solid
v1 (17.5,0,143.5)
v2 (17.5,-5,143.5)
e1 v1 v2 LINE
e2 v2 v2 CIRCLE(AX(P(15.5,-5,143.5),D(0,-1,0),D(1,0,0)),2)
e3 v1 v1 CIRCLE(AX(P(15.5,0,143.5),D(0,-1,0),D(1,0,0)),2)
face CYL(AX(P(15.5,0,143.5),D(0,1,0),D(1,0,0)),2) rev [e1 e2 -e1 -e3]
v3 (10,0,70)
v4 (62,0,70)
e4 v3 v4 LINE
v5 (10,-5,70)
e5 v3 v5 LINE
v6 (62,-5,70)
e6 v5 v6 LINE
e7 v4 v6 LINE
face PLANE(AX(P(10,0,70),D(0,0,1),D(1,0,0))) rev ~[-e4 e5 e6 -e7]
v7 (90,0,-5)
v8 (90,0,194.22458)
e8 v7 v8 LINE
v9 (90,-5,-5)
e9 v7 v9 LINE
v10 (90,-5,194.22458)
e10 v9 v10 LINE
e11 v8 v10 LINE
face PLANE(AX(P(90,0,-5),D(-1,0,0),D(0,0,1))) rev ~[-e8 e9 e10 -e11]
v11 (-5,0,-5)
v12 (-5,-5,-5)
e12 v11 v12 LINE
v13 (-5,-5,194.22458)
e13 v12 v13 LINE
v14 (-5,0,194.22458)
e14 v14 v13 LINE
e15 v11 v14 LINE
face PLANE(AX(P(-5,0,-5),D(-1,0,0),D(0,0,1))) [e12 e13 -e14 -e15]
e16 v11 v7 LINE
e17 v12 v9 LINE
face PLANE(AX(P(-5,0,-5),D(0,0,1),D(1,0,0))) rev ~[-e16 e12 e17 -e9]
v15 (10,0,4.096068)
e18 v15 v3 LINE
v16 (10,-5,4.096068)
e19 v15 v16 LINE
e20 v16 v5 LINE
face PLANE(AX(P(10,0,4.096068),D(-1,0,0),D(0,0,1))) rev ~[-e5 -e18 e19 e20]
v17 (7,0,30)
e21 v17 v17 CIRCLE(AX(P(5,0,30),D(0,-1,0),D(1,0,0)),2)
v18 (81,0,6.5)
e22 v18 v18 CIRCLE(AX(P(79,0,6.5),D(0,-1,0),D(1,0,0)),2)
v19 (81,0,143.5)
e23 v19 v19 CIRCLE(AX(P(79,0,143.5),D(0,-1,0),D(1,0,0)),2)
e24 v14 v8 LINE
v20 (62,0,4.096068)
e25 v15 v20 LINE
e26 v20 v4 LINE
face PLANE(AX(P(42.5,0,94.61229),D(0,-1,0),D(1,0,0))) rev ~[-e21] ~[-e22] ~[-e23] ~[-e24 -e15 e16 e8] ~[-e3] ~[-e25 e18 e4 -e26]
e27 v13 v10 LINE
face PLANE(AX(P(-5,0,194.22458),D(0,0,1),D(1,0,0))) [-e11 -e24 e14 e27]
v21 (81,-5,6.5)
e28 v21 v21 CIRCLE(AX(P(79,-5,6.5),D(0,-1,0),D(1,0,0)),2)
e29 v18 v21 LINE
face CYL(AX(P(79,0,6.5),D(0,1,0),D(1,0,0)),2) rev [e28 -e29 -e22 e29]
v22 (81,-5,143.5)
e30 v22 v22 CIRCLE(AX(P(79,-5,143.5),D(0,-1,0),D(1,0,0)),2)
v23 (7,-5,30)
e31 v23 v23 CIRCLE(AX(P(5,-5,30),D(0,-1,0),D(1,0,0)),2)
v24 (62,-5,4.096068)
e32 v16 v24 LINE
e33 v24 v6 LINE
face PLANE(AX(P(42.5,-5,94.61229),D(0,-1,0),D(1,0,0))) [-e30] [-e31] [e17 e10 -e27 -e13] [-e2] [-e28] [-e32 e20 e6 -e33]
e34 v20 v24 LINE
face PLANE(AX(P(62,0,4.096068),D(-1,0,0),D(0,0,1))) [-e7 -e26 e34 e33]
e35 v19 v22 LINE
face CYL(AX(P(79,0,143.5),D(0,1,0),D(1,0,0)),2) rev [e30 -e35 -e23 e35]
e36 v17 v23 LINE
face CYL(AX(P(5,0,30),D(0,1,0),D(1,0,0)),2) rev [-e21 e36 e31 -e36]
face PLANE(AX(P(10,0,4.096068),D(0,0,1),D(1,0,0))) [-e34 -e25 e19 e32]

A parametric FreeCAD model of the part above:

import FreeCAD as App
import Part
import Sketcher

V = App.Vector

doc = App.newDocument("Part")
body = doc.addObject("PartDesign::Body", "Body")

# Sketch on XZ plane
sketch1 = doc.addObject("Sketcher::SketchObject", "Sketch")
body.addObject(sketch1)
sketch1.AttachmentSupport = (doc.XZ_Plane, [""])
sketch1.MapMode = "FlatFace"
sketch1.addGeometry(Part.LineSegment(V(-5, 194.2, 0), V(-5, -5, 0)), False)
sketch1.addGeometry(Part.LineSegment(V(-5, -5, 0), V(90, -5, 0)), False)
sketch1.addGeometry(Part.LineSegment(V(90, -5, 0), V(90, 194.2, 0)), False)
sketch1.addGeometry(Part.LineSegment(V(90, 194.2, 0), V(-5, 194.2, 0)), False)
sketch1.addGeometry(Part.Circle(V(5, 30, 0), V(0, 0, 1), 2), False)
sketch1.addGeometry(Part.LineSegment(V(62, 4.1, 0), V(10, 4.1, 0)), False)
sketch1.addGeometry(Part.LineSegment(V(10, 4.1, 0), V(10, 70, 0)), False)
sketch1.addGeometry(Part.LineSegment(V(10, 70, 0), V(62, 70, 0)), False)
sketch1.addGeometry(Part.LineSegment(V(62, 70, 0), V(62, 4.1, 0)), False)
sketch1.addGeometry(Part.Circle(V(79, 6.5, 0), V(0, 0, 1), 2), False)
sketch1.addGeometry(Part.Circle(V(15.5, 143.5, 0), V(0, 0, 1), 2), False)
sketch1.addGeometry(Part.Circle(V(79, 143.5, 0), V(0, 0, 1), 2), False)
sketch1.addConstraint(Sketcher.Constraint("Coincident", 0, 2, 1, 1))
sketch1.addConstraint(Sketcher.Constraint("Coincident", 1, 2, 2, 1))
sketch1.addConstraint(Sketcher.Constraint("Coincident", 2, 2, 3, 1))
sketch1.addConstraint(Sketcher.Constraint("Coincident", 3, 2, 0, 1))
sketch1.addConstraint(Sketcher.Constraint("Coincident", 5, 2, 6, 1))
sketch1.addConstraint(Sketcher.Constraint("Coincident", 6, 2, 7, 1))
sketch1.addConstraint(Sketcher.Constraint("Coincident", 7, 2, 8, 1))
sketch1.addConstraint(Sketcher.Constraint("Coincident", 8, 2, 5, 1))
sketch1.addConstraint(Sketcher.Constraint("Vertical", 0))
sketch1.addConstraint(Sketcher.Constraint("Horizontal", 1))
sketch1.addConstraint(Sketcher.Constraint("Vertical", 2))
sketch1.addConstraint(Sketcher.Constraint("Horizontal", 3))
sketch1.addConstraint(Sketcher.Constraint("Horizontal", 5))
sketch1.addConstraint(Sketcher.Constraint("Vertical", 6))
sketch1.addConstraint(Sketcher.Constraint("Horizontal", 7))
sketch1.addConstraint(Sketcher.Constraint("Vertical", 8))
sketch1.addConstraint(Sketcher.Constraint("Equal", 4, 9))
sketch1.addConstraint(Sketcher.Constraint("Equal", 9, 10))
sketch1.addConstraint(Sketcher.Constraint("Equal", 10, 11))
sketch1.addConstraint(Sketcher.Constraint("Horizontal", 10, 3, 11, 3))
sketch1.addConstraint(Sketcher.Constraint("Vertical", 9, 3, 11, 3))
sketch1.addConstraint(Sketcher.Constraint("Diameter", 4, 4.0))
sketch1.addConstraint(Sketcher.Constraint("DistanceX", 1, 1, 1, 2, 95.0))
sketch1.addConstraint(Sketcher.Constraint("DistanceX", 5, 2, 5, 1, 52.0))
sketch1.addConstraint(Sketcher.Constraint("DistanceX", -1, 1, 4, 3, 5.0))
sketch1.addConstraint(Sketcher.Constraint("DistanceY", -1, 1, 4, 3, 30.0))
sketch1.addConstraint(Sketcher.Constraint("DistanceX", -1, 1, 9, 3, 79.0))
sketch1.addConstraint(Sketcher.Constraint("DistanceX", 0, 2, -1, 1, 5.0))
sketch1.addConstraint(Sketcher.Constraint("DistanceY", 0, 2, -1, 1, 5.0))
sketch1.addConstraint(Sketcher.Constraint("DistanceX", -1, 1, 5, 2, 10.0))
sketch1.addConstraint(Sketcher.Constraint("DistanceY", -1, 1, 6, 2, 70.0))
sketch1.addConstraint(Sketcher.Constraint("DistanceY", 9, 3, 10, 3, 137.0))
sketch1.addConstraint(Sketcher.Constraint("DistanceY", -1, 1, 9, 3, 6.5))
sketch1.addConstraint(Sketcher.Constraint("DistanceX", -1, 1, 10, 3, 15.5))
sketch1.addConstraint(Sketcher.Constraint("DistanceY", 0, 2, 0, 1, 199.22458))
sketch1.addConstraint(Sketcher.Constraint("DistanceY", 6, 1, 6, 2, 65.903932))
pad1 = doc.addObject("PartDesign::Pad", "Pad")
body.addObject(pad1)
pad1.Profile = sketch1
pad1.Length = 5

doc.recompute()
